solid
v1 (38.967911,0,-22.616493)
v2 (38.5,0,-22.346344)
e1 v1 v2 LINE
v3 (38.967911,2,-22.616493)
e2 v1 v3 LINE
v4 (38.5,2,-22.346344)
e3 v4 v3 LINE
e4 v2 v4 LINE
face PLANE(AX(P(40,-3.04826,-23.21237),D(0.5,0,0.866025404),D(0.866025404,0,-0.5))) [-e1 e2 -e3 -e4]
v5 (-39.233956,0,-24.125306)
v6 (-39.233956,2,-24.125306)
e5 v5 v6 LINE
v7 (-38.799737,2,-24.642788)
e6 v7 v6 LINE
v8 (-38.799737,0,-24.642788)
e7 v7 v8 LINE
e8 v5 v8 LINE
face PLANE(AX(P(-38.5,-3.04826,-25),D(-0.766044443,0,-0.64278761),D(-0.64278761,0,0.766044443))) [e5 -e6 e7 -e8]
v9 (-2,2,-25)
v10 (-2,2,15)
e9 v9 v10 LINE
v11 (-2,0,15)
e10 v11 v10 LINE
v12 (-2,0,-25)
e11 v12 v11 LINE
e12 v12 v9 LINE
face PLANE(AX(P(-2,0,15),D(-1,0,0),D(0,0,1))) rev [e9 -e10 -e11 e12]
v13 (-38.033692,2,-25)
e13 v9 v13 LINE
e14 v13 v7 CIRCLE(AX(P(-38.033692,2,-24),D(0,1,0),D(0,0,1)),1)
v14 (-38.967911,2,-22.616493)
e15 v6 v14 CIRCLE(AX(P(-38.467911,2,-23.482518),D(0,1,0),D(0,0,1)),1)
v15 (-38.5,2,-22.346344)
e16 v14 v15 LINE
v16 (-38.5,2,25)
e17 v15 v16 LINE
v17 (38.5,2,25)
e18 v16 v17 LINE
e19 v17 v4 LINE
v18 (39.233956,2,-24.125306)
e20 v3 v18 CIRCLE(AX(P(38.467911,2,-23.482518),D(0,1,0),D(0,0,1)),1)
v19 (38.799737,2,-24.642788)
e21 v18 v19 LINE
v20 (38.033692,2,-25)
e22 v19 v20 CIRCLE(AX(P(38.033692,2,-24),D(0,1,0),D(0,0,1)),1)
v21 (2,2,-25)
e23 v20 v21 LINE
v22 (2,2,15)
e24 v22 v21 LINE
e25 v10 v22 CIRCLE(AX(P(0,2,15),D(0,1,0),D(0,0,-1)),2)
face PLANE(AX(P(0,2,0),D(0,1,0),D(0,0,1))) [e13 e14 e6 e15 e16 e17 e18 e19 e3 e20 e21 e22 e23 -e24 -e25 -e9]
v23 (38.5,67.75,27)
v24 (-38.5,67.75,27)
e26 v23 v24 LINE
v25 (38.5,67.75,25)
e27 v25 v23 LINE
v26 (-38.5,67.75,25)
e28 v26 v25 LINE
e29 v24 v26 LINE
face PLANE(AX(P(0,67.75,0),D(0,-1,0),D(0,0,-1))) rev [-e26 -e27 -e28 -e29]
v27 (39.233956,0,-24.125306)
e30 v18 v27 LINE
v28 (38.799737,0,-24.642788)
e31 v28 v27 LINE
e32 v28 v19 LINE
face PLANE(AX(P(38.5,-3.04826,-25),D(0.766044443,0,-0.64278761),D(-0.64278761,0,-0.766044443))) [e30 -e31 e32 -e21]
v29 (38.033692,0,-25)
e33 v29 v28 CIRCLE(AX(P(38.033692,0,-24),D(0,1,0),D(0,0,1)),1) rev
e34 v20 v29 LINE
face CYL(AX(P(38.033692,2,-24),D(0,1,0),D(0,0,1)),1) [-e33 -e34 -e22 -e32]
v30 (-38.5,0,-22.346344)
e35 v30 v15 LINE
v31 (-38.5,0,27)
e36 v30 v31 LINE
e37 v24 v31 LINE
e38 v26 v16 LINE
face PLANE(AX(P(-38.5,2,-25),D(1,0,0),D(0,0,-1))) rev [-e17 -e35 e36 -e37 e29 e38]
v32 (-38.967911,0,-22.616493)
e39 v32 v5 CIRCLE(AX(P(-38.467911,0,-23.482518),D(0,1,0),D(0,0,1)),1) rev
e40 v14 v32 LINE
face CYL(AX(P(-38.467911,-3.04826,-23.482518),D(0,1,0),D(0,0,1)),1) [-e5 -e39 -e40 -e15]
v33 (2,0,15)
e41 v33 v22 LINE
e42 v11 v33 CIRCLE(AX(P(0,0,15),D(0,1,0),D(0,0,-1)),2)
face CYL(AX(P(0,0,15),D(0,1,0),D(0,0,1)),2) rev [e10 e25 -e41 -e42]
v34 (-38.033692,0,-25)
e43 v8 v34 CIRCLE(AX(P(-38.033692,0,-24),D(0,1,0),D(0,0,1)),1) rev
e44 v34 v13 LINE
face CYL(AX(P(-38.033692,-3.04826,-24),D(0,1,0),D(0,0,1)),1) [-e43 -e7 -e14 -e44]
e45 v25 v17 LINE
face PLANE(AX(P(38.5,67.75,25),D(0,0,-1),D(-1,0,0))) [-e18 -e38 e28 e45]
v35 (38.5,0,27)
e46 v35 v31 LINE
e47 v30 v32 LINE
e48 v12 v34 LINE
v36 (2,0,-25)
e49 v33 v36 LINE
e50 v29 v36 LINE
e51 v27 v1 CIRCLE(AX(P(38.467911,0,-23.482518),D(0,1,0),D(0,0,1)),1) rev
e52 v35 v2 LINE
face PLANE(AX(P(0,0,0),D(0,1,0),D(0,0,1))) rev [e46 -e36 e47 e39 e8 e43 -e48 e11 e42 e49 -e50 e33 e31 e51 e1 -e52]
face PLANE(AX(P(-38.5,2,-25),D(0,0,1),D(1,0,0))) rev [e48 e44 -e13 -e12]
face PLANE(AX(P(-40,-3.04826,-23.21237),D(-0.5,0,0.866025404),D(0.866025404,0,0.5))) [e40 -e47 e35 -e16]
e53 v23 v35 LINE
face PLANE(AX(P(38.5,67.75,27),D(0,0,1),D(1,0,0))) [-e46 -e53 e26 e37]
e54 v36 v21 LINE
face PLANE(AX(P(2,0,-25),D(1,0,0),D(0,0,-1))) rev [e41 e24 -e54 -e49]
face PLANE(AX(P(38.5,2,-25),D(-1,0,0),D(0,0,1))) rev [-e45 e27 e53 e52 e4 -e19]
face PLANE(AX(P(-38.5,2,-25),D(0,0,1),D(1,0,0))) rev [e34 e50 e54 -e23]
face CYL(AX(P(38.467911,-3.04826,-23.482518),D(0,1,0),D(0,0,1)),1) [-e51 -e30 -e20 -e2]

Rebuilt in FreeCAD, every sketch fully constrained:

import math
import FreeCAD as App
import Part
import Sketcher
Q = App.Units.Quantity


def edges_at(feature, points):
    """Names of the edges that pass closest to the given points."""
    edges = feature.Shape.Edges
    near = lambda p: min(range(len(edges)), key=lambda i: edges[i].distToShape(Part.Vertex(*p))[0])
    return sorted({f"Edge{near(p) + 1}" for p in points})


def add_polygon(sketch, points):
    """Adds a closed chain of lines whose ends are joined by coincident constraints."""
    first, n = sketch.GeometryCount, len(points)
    for a, b in zip(points, points[1:] + points[:1]):
        sketch.addGeometry(Part.LineSegment(App.Vector(*a, 0), App.Vector(*b, 0)), False)
    for i in range(n):
        sketch.addConstraint(Sketcher.Constraint("Coincident", first + i, 2, first + (i + 1) % n, 1))

doc = App.newDocument("Part")
params = doc.addObject("Spreadsheet::Sheet", "Params")
for row, (alias, value) in enumerate([
    ("sketch1_width", "77 mm"),
    ("sketch1_height", "50 mm"),
    ("pad1_length", "2 mm"),
    ("sketch2_width", "77 mm"),
    ("sketch2_height", "2 mm"),
    ("pad2_length", "67.75 mm"),
    ("sketch3_radius", "2 mm"),
    ("sketch3_height", "40 mm"),
    ("pad3_length", "2 mm"),
    ("fillet_radius", "1 mm"),
], start=1):
    params.set(f"A{row}", alias)
    params.set(f"B{row}", "=" + value)
    params.setAlias(f"B{row}", alias)

body = doc.addObject("PartDesign::Body", "Body")

# Sketch on XZ plane
sketch1 = doc.addObject("Sketcher::SketchObject", "Sketch")
body.addObject(sketch1)
sketch1.AttachmentSupport = (doc.XZ_Plane, [""])
sketch1.MapMode = "FlatFace"
add_polygon(sketch1, [(-38, -25), (-38, 25), (38, 25), (38, -25)])  # lines 0-3
sketch1.addConstraint(Sketcher.Constraint("Vertical", 0))
sketch1.addConstraint(Sketcher.Constraint("Horizontal", 1))
sketch1.addConstraint(Sketcher.Constraint("Vertical", 2))
sketch1.addConstraint(Sketcher.Constraint("Horizontal", 3))
sketch1.addConstraint(Sketcher.Constraint("Symmetric", 0, 2, 2, 2, -1, 1))
sketch1.addConstraint(Sketcher.Constraint("DistanceX", 1, 1, 1, 2, 77.0))
sketch1.addConstraint(Sketcher.Constraint("DistanceY", 0, 1, 0, 2, 50.0))
sketch1.setExpression("Constraints[9]", "Params.sketch1_width")
sketch1.setExpression("Constraints[10]", "Params.sketch1_height")
pad1 = doc.addObject("PartDesign::Pad", "Pad")
body.addObject(pad1)
pad1.Profile = sketch1
pad1.setExpression("Length", "Params.pad1_length")
pad1.Reversed = True

# Sketch on XZ plane
sketch2 = doc.addObject("Sketcher::SketchObject", "Sketch001")
body.addObject(sketch2)
sketch2.AttachmentSupport = (doc.XZ_Plane, [""])
sketch2.MapMode = "FlatFace"
add_polygon(sketch2, [(-38.5, 27), (-38.5, 25), (38.5, 25), (38.5, 27)])  # lines 0-3
sketch2.addConstraint(Sketcher.Constraint("Vertical", 0))
sketch2.addConstraint(Sketcher.Constraint("Horizontal", 1))
sketch2.addConstraint(Sketcher.Constraint("Vertical", 2))
sketch2.addConstraint(Sketcher.Constraint("Horizontal", 3))
sketch2.addConstraint(Sketcher.Constraint("DistanceX", 1, 1, 1, 2, 77.0))
sketch2.addConstraint(Sketcher.Constraint("DistanceY", 0, 2, 0, 1, 2.0))
sketch2.addConstraint(Sketcher.Constraint("DistanceY", -1, 1, 0, 2, 25.0))
sketch2.addConstraint(Sketcher.Constraint("DistanceX", 0, 2, -1, 1, 38.5))
sketch2.setExpression("Constraints[8]", "Params.sketch2_width")
sketch2.setExpression("Constraints[9]", "Params.sketch2_height")
pad2 = doc.addObject("PartDesign::Pad", "Pad001")
body.addObject(pad2)
pad2.Profile = sketch2
pad2.setExpression("Length", "Params.pad2_length")
pad2.Reversed = True

# Sketch on XZ plane
sketch3 = doc.addObject("Sketcher::SketchObject", "Sketch002")
body.addObject(sketch3)
sketch3.AttachmentSupport = (doc.XZ_Plane, [""])
sketch3.MapMode = "FlatFace"
sketch3.AttachmentOffset = App.Placement(App.Vector(0, 0, -2), App.Rotation())
sketch3.addGeometry(Part.LineSegment(App.Vector(2, 15, 0), App.Vector(2, -25, 0)), False)
sketch3.addGeometry(Part.LineSegment(App.Vector(2, -25, 0), App.Vector(-2, -25, 0)), False)
sketch3.addGeometry(Part.LineSegment(App.Vector(-2, -25, 0), App.Vector(-2, 15, 0)), False)
sketch3.addGeometry(Part.ArcOfCircle(Part.Circle(App.Vector(0, 15, 0), App.Vector(0, 0, 1), 2), math.radians(0), math.radians(180)), False)
sketch3.addConstraint(Sketcher.Constraint("Coincident", 0, 2, 1, 1))
sketch3.addConstraint(Sketcher.Constraint("Coincident", 1, 2, 2, 1))
sketch3.addConstraint(Sketcher.Constraint("Tangent", 2, 2, 3, 2))
sketch3.addConstraint(Sketcher.Constraint("Tangent", 3, 1, 0, 1))
sketch3.addConstraint(Sketcher.Constraint("Vertical", 0))
sketch3.addConstraint(Sketcher.Constraint("Horizontal", 1))
sketch3.addConstraint(Sketcher.Constraint("Vertical", 2))
sketch3.addConstraint(Sketcher.Constraint("PointOnObject", 3, 3, -2))
sketch3.addConstraint(Sketcher.Constraint("Radius", 3, 2.0))
sketch3.addConstraint(Sketcher.Constraint("DistanceY", 0, 2, 0, 1, 40.0))
sketch3.addConstraint(Sketcher.Constraint("DistanceY", -1, 1, 3, 3, 15.0))
sketch3.setExpression("Constraints[8]", "Params.sketch3_radius")
sketch3.setExpression("Constraints[9]", "Params.sketch3_height")
pocket1 = doc.addObject("PartDesign::Pocket", "Pocket")
body.addObject(pocket1)
pocket1.Profile = sketch3
pocket1.Type = "ThroughAll"
pocket1.Reversed = True

# Sketch on XZ plane
sketch4 = doc.addObject("Sketcher::SketchObject", "Sketch003")
body.addObject(sketch4)
sketch4.AttachmentSupport = (doc.XZ_Plane, [""])
sketch4.MapMode = "FlatFace"
sketch4.AttachmentOffset = App.Placement(App.Vector(0, 0, -2), App.Rotation())
add_polygon(sketch4, [(-38.5, -25), (-40, -23.2), (-38.5, -22.3)])  # lines 0-2
add_polygon(sketch4, [(38.5, -22.3), (40, -23.2), (38.5, -25)])  # lines 3-5
sketch4.addConstraint(Sketcher.Constraint("Vertical", 2))
sketch4.addConstraint(Sketcher.Constraint("Vertical", 5))
sketch4.addConstraint(Sketcher.Constraint("Symmetric", 0, 2, 3, 2, -2))
sketch4.addConstraint(Sketcher.Constraint("Symmetric", 2, 2, 4, 2, -2))
sketch4.addConstraint(Sketcher.Constraint("Horizontal", 1, 2, 5, 2))
sketch4.addConstraint(Sketcher.Constraint("Angle", 0, Q("130 deg")))
sketch4.addConstraint(Sketcher.Constraint("Angle", 1, Q("30 deg")))
sketch4.addConstraint(Sketcher.Constraint("DistanceX", 0, 2, -1, 1, 40.0))
sketch4.addConstraint(Sketcher.Constraint("DistanceY", 2, 2, -1, 1, 25.0))
sketch4.addConstraint(Sketcher.Constraint("DistanceX", 2, 2, 4, 2, 77.0))
pad3 = doc.addObject("PartDesign::Pad", "Pad002")
body.addObject(pad3)
pad3.Profile = sketch4
pad3.setExpression("Length", "Params.pad3_length")
doc.recompute()

fillet = doc.addObject("PartDesign::Fillet", "Fillet")
body.addObject(fillet)
fillet.Base = (pad3, edges_at(pad3, [
    (-40, 1, -23.212),
    (40, 1, -23.212),
    (-38.5, 1, -25),
    (38.5, 1, -25),
]))
fillet.setExpression("Radius", "Params.fillet_radius")

doc.recompute()
